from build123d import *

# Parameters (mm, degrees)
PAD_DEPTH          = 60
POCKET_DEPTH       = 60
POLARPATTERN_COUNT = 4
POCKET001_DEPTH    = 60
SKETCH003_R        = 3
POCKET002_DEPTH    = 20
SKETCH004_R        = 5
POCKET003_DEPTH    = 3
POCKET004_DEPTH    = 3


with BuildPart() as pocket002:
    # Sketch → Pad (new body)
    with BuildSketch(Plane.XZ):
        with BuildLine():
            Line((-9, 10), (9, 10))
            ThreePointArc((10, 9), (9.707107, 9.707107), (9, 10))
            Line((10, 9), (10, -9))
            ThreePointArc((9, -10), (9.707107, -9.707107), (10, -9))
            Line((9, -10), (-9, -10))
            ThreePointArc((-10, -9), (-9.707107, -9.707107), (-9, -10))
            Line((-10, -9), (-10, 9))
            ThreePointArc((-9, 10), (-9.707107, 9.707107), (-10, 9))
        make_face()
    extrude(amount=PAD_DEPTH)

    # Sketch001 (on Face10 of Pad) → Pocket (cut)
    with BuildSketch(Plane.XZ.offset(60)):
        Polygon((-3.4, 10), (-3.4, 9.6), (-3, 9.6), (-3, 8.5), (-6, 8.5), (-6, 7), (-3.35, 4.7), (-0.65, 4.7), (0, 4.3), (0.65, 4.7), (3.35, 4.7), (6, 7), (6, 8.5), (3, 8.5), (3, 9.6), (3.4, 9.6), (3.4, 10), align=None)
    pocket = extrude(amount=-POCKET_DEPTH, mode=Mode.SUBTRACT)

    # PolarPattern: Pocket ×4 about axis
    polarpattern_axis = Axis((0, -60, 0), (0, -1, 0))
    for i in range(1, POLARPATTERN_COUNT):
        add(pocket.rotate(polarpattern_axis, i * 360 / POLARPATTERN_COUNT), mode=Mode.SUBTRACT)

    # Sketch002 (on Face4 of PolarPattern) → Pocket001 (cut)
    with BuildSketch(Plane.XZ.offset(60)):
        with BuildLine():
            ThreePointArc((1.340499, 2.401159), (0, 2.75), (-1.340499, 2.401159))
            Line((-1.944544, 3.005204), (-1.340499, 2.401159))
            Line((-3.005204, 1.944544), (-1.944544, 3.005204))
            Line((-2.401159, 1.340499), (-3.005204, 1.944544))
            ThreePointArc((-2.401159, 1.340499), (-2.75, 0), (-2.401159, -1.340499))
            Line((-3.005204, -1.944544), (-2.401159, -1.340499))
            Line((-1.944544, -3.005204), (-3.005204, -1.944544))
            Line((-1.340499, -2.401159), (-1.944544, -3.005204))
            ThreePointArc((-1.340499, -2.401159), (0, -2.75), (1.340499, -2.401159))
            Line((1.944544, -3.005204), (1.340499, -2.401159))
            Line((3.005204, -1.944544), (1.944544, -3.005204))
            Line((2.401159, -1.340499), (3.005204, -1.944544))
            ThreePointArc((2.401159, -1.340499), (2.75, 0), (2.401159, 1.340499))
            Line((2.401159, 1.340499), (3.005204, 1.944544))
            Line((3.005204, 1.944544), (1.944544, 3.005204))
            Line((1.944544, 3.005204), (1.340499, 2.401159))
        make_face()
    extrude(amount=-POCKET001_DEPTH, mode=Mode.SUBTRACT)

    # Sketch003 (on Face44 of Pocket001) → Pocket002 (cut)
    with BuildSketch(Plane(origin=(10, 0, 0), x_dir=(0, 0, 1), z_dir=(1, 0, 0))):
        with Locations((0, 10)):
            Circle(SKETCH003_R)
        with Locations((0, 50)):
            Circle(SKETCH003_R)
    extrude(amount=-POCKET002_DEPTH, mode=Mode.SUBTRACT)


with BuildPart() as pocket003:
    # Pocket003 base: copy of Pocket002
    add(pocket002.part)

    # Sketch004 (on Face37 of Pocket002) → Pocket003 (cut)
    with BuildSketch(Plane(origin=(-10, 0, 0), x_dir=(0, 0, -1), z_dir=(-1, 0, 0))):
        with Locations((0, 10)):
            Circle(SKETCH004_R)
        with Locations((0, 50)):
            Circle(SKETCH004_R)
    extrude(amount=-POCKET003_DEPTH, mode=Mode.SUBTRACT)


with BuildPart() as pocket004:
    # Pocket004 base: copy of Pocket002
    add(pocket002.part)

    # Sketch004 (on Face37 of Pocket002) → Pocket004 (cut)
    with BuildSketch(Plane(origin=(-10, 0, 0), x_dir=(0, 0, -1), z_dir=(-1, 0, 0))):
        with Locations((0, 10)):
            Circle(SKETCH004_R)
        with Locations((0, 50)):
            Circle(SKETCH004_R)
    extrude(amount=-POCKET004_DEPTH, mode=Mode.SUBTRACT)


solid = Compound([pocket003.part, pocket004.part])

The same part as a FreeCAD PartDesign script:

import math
import FreeCAD as App
import Part
import Sketcher

V = App.Vector
Q = App.Units.Quantity


def add_polygon(sketch, points):
    """Adds a closed chain of lines whose ends are joined by coincident constraints."""
    first, n = sketch.GeometryCount, len(points)
    for a, b in zip(points, points[1:] + points[:1]):
        sketch.addGeometry(Part.LineSegment(App.Vector(*a, 0), App.Vector(*b, 0)), False)
    for i in range(n):
        sketch.addConstraint(Sketcher.Constraint("Coincident", first + i, 2, first + (i + 1) % n, 1))

doc = App.newDocument("Part")
params = doc.addObject("Spreadsheet::Sheet", "Params")
for row, (alias, value) in enumerate([
    ("sketch1_radius", "0.999999 mm"),
    ("sketch1_width", "18 mm"),
    ("pad1_length", "60 mm"),
    ("sketch2_width", "3 mm"),
    ("sketch2_width2", "0.4 mm"),
    ("sketch2_width3", "2.7 mm"),
    ("sketch2_width4", "6.8 mm"),
    ("sketch2_height", "1.1 mm"),
    ("pocket1_length", "60 mm"),
    ("sketch3_length", "1.5 mm"),
    ("pocket2_length", "60 mm"),
    ("sketch4_diameter", "6 mm"),
    ("pocket3_length", "20 mm"),
    ("sketch5_diameter", "10 mm"),
    ("pocket4_length", "3 mm"),
    ("sketch6_diameter", "10 mm"),
    ("pocket5_length", "3 mm"),
], start=1):
    params.set(f"A{row}", alias)
    params.set(f"B{row}", "=" + value)
    params.setAlias(f"B{row}", alias)

body = doc.addObject("PartDesign::Body", "Body")

# Sketch on XZ plane
sketch1 = body.newObject("Sketcher::SketchObject", "Sketch")
sketch1.AttachmentSupport = (doc.getObject("XZ_Plane"), [""])
sketch1.MapMode = "FlatFace"
sketch1.addGeometry(Part.LineSegment(V(9, 10, 0), V(-9, 10, 0)), False)
sketch1.addGeometry(Part.ArcOfCircle(Part.Circle(V(-9, 9, 0), V(0, 0, 1), 1), math.radians(90), math.radians(180)), False)
sketch1.addGeometry(Part.LineSegment(V(-10, 9, 0), V(-10, -9, 0)), False)
sketch1.addGeometry(Part.ArcOfCircle(Part.Circle(V(-9, -9, 0), V(0, 0, 1), 1), math.radians(180), math.radians(270)), False)
sketch1.addGeometry(Part.LineSegment(V(-9, -10, 0), V(9, -10, 0)), False)
sketch1.addGeometry(Part.ArcOfCircle(Part.Circle(V(9, -9, 0), V(0, 0, 1), 1), math.radians(-90), math.radians(0)), False)
sketch1.addGeometry(Part.LineSegment(V(10, -9, 0), V(10, 9, 0)), False)
sketch1.addGeometry(Part.ArcOfCircle(Part.Circle(V(9, 9, 0), V(0, 0, 1), 1), math.radians(0), math.radians(90)), False)
sketch1.addConstraint(Sketcher.Constraint("Tangent", 0, 2, 1, 1))
sketch1.addConstraint(Sketcher.Constraint("Tangent", 1, 2, 2, 1))
sketch1.addConstraint(Sketcher.Constraint("Tangent", 2, 2, 3, 1))
sketch1.addConstraint(Sketcher.Constraint("Tangent", 3, 2, 4, 1))
sketch1.addConstraint(Sketcher.Constraint("Tangent", 4, 2, 5, 1))
sketch1.addConstraint(Sketcher.Constraint("Tangent", 5, 2, 6, 1))
sketch1.addConstraint(Sketcher.Constraint("Tangent", 6, 2, 7, 1))
sketch1.addConstraint(Sketcher.Constraint("Tangent", 7, 2, 0, 1))
sketch1.addConstraint(Sketcher.Constraint("Horizontal", 0))
sketch1.addConstraint(Sketcher.Constraint("Vertical", 2))
sketch1.addConstraint(Sketcher.Constraint("Horizontal", 4))
sketch1.addConstraint(Sketcher.Constraint("Vertical", 6))
sketch1.addConstraint(Sketcher.Constraint("Equal", 1, 3))
sketch1.addConstraint(Sketcher.Constraint("Equal", 3, 5))
sketch1.addConstraint(Sketcher.Constraint("Equal", 5, 7))
sketch1.addConstraint(Sketcher.Constraint("Symmetric", 1, 3, 5, 3, -1, 1))
sketch1.addConstraint(Sketcher.Constraint("Equal", 4, 2))
sketch1.addConstraint(Sketcher.Constraint("Radius", 1, Q("0.999999 mm")))
sketch1.addConstraint(Sketcher.Constraint("DistanceX", 0, 2, 0, 1, Q("18 mm")))
sketch1.setExpression("Constraints[17]", "Params.sketch1_radius")
sketch1.setExpression("Constraints[18]", "Params.sketch1_width")
pad1 = body.newObject("PartDesign::Pad", "Pad")
pad1.Profile = sketch1
pad1.setExpression("Length", "Params.pad1_length")

# Sketch on XZ plane
sketch2 = body.newObject("Sketcher::SketchObject", "Sketch001")
sketch2.AttachmentSupport = (doc.getObject("XZ_Plane"), [""])
sketch2.MapMode = "FlatFace"
sketch2.AttachmentOffset = App.Placement(V(0, 0, 60), App.Rotation())
add_polygon(sketch2, [(-3.4, 10), (-3.4, 9.6), (-3, 9.6), (-3, 8.5), (-6, 8.5), (-6, 7), (-3.35, 4.7), (-0.65, 4.7), (0, 4.3), (0.65, 4.7), (3.35, 4.7), (6, 7), (6, 8.5), (3, 8.5), (3, 9.6), (3.4, 9.6), (3.4, 10)])  # lines 0-16
sketch2.addConstraint(Sketcher.Constraint("Vertical", 0))
sketch2.addConstraint(Sketcher.Constraint("Horizontal", 1))
sketch2.addConstraint(Sketcher.Constraint("Vertical", 2))
sketch2.addConstraint(Sketcher.Constraint("Horizontal", 3))
sketch2.addConstraint(Sketcher.Constraint("Vertical", 4))
sketch2.addConstraint(Sketcher.Constraint("Horizontal", 6))
sketch2.addConstraint(Sketcher.Constraint("Horizontal", 9))
sketch2.addConstraint(Sketcher.Constraint("Vertical", 11))
sketch2.addConstraint(Sketcher.Constraint("Horizontal", 12))
sketch2.addConstraint(Sketcher.Constraint("Vertical", 13))
sketch2.addConstraint(Sketcher.Constraint("Horizontal", 14))
sketch2.addConstraint(Sketcher.Constraint("Vertical", 15))
sketch2.addConstraint(Sketcher.Constraint("Horizontal", 16))
sketch2.addConstraint(Sketcher.Constraint("Symmetric", 6, 2, 8, 2, -2))
sketch2.addConstraint(Sketcher.Constraint("Symmetric", 4, 2, 10, 2, -2))
sketch2.addConstraint(Sketcher.Constraint("Symmetric", 2, 2, 12, 2, -2))
sketch2.addConstraint(Sketcher.Constraint("Symmetric", 0, 2, 14, 2, -2))
sketch2.addConstraint(Sketcher.Constraint("PointOnObject", 7, 2, -2))
sketch2.addConstraint(Sketcher.Constraint("Equal", 6, 9))
sketch2.addConstraint(Sketcher.Constraint("Equal", 14, 0))
sketch2.addConstraint(Sketcher.Constraint("DistanceX", 3, 2, 3, 1, Q("3 mm")))
sketch2.addConstraint(Sketcher.Constraint("DistanceX", 1, 1, 1, 2, Q("0.4 mm")))
sketch2.addConstraint(Sketcher.Constraint("DistanceX", 6, 1, 6, 2, Q("2.7 mm")))
sketch2.addConstraint(Sketcher.Constraint("DistanceX", 16, 2, 16, 1, Q("6.8 mm")))
sketch2.addConstraint(Sketcher.Constraint("DistanceY", 2, 2, 2, 1, Q("1.1 mm")))
sketch2.addConstraint(Sketcher.Constraint("DistanceY", 4, 2, 4, 1, Q("1.5 mm")))
sketch2.addConstraint(Sketcher.Constraint("DistanceY", -1, 1, 4, 2, Q("7 mm")))
sketch2.addConstraint(Sketcher.Constraint("DistanceX", 5, 2, 8, 2, Q("4 mm")))
sketch2.addConstraint(Sketcher.Constraint("DistanceY", -1, 1, 5, 2, Q("4.7 mm")))
sketch2.addConstraint(Sketcher.Constraint("DistanceY", -1, 1, 7, 2, Q("4.3 mm")))
sketch2.setExpression("Constraints[37]", "Params.sketch2_width")
sketch2.setExpression("Constraints[38]", "Params.sketch2_width2")
sketch2.setExpression("Constraints[39]", "Params.sketch2_width3")
sketch2.setExpression("Constraints[40]", "Params.sketch2_width4")
sketch2.setExpression("Constraints[41]", "Params.sketch2_height")
pocket1 = body.newObject("PartDesign::Pocket", "Pocket")
pocket1.Profile = sketch2
pocket1.setExpression("Length", "Params.pocket1_length")
doc.recompute()

polarpattern = body.newObject("PartDesign::PolarPattern", "PolarPattern")
polarpattern.Originals = [pocket1]
polarpattern.Axis = (doc.getObject("Y_Axis"), [""])
polarpattern.Angle = 360
polarpattern.Occurrences = 4
body.Tip = polarpattern

# Sketch on XZ plane
sketch3 = body.newObject("Sketcher::SketchObject", "Sketch002")
sketch3.AttachmentSupport = (doc.getObject("XZ_Plane"), [""])
sketch3.MapMode = "FlatFace"
sketch3.AttachmentOffset = App.Placement(V(0, 0, 60), App.Rotation())
sketch3.addGeometry(Part.ArcOfCircle(Part.Circle(V(0, 0, 0), V(0, 0, 1), 2.8), math.radians(61), math.radians(119)), False)
sketch3.addGeometry(Part.LineSegment(V(-1.3, 2.4, 0), V(-1.9, 3, 0)), False)
sketch3.addGeometry(Part.LineSegment(V(-1.9, 3, 0), V(-3, 1.9, 0)), False)
sketch3.addGeometry(Part.LineSegment(V(-3, 1.9, 0), V(-2.4, 1.3, 0)), False)
sketch3.addGeometry(Part.ArcOfCircle(Part.Circle(V(0, 0, 0), V(0, 0, 1), 2.8), math.radians(151), math.radians(209)), False)
sketch3.addGeometry(Part.LineSegment(V(-2.4, -1.3, 0), V(-3, -1.9, 0)), False)
sketch3.addGeometry(Part.LineSegment(V(-3, -1.9, 0), V(-1.9, -3, 0)), False)
sketch3.addGeometry(Part.LineSegment(V(-1.9, -3, 0), V(-1.3, -2.4, 0)), False)
sketch3.addGeometry(Part.ArcOfCircle(Part.Circle(V(0, 0, 0), V(0, 0, 1), 2.8), math.radians(-119), math.radians(-61)), False)
sketch3.addGeometry(Part.LineSegment(V(1.3, -2.4, 0), V(1.9, -3, 0)), False)
sketch3.addGeometry(Part.LineSegment(V(1.9, -3, 0), V(3, -1.9, 0)), False)
sketch3.addGeometry(Part.LineSegment(V(3, -1.9, 0), V(2.4, -1.3, 0)), False)
sketch3.addGeometry(Part.ArcOfCircle(Part.Circle(V(0, 0, 0), V(0, 0, 1), 2.8), math.radians(-29), math.radians(29)), False)
sketch3.addGeometry(Part.LineSegment(V(2.4, 1.3, 0), V(3, 1.9, 0)), False)
sketch3.addGeometry(Part.LineSegment(V(3, 1.9, 0), V(1.9, 3, 0)), False)
sketch3.addGeometry(Part.LineSegment(V(1.9, 3, 0), V(1.3, 2.4, 0)), False)
sketch3.addConstraint(Sketcher.Constraint("Coincident", 0, 2, 1, 1))
sketch3.addConstraint(Sketcher.Constraint("Coincident", 1, 2, 2, 1))
sketch3.addConstraint(Sketcher.Constraint("Coincident", 2, 2, 3, 1))
sketch3.addConstraint(Sketcher.Constraint("Coincident", 3, 2, 4, 1))
sketch3.addConstraint(Sketcher.Constraint("Coincident", 4, 2, 5, 1))
sketch3.addConstraint(Sketcher.Constraint("Coincident", 5, 2, 6, 1))
sketch3.addConstraint(Sketcher.Constraint("Coincident", 6, 2, 7, 1))
sketch3.addConstraint(Sketcher.Constraint("Coincident", 7, 2, 8, 1))
sketch3.addConstraint(Sketcher.Constraint("Coincident", 8, 2, 9, 1))
sketch3.addConstraint(Sketcher.Constraint("Coincident", 9, 2, 10, 1))
sketch3.addConstraint(Sketcher.Constraint("Coincident", 10, 2, 11, 1))
sketch3.addConstraint(Sketcher.Constraint("Coincident", 11, 2, 12, 1))
sketch3.addConstraint(Sketcher.Constraint("Coincident", 12, 2, 13, 1))
sketch3.addConstraint(Sketcher.Constraint("Coincident", 13, 2, 14, 1))
sketch3.addConstraint(Sketcher.Constraint("Coincident", 14, 2, 15, 1))
sketch3.addConstraint(Sketcher.Constraint("Coincident", 15, 2, 0, 1))
sketch3.addConstraint(Sketcher.Constraint("Coincident", 0, 3, -1, 1))
sketch3.addConstraint(Sketcher.Constraint("Coincident", 4, 3, -1, 1))
sketch3.addConstraint(Sketcher.Constraint("Coincident", 8, 3, -1, 1))
sketch3.addConstraint(Sketcher.Constraint("Coincident", 12, 3, -1, 1))
sketch3.addConstraint(Sketcher.Constraint("Equal", 0, 4))
sketch3.addConstraint(Sketcher.Constraint("Equal", 4, 8))
sketch3.addConstraint(Sketcher.Constraint("Equal", 8, 12))
sketch3.addConstraint(Sketcher.Constraint("Symmetric", 1, 2, 9, 2, -1, 1))
sketch3.addConstraint(Sketcher.Constraint("Symmetric", 2, 2, 10, 2, -1, 1))
sketch3.addConstraint(Sketcher.Constraint("Symmetric", 5, 2, 13, 2, -1, 1))
sketch3.addConstraint(Sketcher.Constraint("Symmetric", 6, 2, 14, 2, -1, 1))
sketch3.addConstraint(Sketcher.Constraint("Symmetric", 6, 2, 9, 2, -2))
sketch3.addConstraint(Sketcher.Constraint("Symmetric", 5, 2, 10, 2, -2))
sketch3.addConstraint(Sketcher.Constraint("Perpendicular", 1, 2))
sketch3.addConstraint(Sketcher.Constraint("Perpendicular", 2, 3))
sketch3.addConstraint(Sketcher.Constraint("Perpendicular", 3, 5))
sketch3.addConstraint(Sketcher.Constraint("Perpendicular", 5, 6))
sketch3.addConstraint(Sketcher.Constraint("Perpendicular", 6, 7))
sketch3.addConstraint(Sketcher.Constraint("Perpendicular", 7, 9))
sketch3.addConstraint(Sketcher.Constraint("Perpendicular", 10, 11))
sketch3.addConstraint(Sketcher.Constraint("Perpendicular", 11, 13))
sketch3.addConstraint(Sketcher.Constraint("Perpendicular", 14, 15))
sketch3.addConstraint(Sketcher.Constraint("Equal", 1, 3))
sketch3.addConstraint(Sketcher.Constraint("Distance", 2, Q("1.5 mm")))
sketch3.addConstraint(Sketcher.Constraint("Radius", 0, Q("2.750003 mm")))
sketch3.addConstraint(Sketcher.Constraint("DistanceY", 8, 3, 1, 2, Q("3.005201 mm")))
sketch3.setExpression("Constraints[39]", "Params.sketch3_length")
pocket2 = body.newObject("PartDesign::Pocket", "Pocket001")
pocket2.Profile = sketch3
pocket2.setExpression("Length", "Params.pocket2_length")

# Sketch on YZ plane
sketch4 = body.newObject("Sketcher::SketchObject", "Sketch003")
sketch4.AttachmentSupport = (doc.getObject("YZ_Plane"), [""])
sketch4.MapMode = "FlatFace"
sketch4.AttachmentOffset = App.Placement(V(0, 0, 10), App.Rotation())
sketch4.addGeometry(Part.Circle(V(-10, 0, 0), V(0, 0, 1), 3), False)
sketch4.addGeometry(Part.Circle(V(-50, 0, 0), V(0, 0, 1), 3), False)
sketch4.addConstraint(Sketcher.Constraint("Equal", 0, 1))
sketch4.addConstraint(Sketcher.Constraint("PointOnObject", 0, 3, -1))
sketch4.addConstraint(Sketcher.Constraint("PointOnObject", 1, 3, -1))
sketch4.addConstraint(Sketcher.Constraint("Diameter", 0, Q("6 mm")))
sketch4.addConstraint(Sketcher.Constraint("DistanceX", 0, 3, -1, 1, Q("10 mm")))
sketch4.addConstraint(Sketcher.Constraint("DistanceX", 1, 3, -1, 1, Q("50 mm")))
sketch4.setExpression("Constraints[3]", "Params.sketch4_diameter")
pocket3 = body.newObject("PartDesign::Pocket", "Pocket002")
pocket3.Profile = sketch4
pocket3.setExpression("Length", "Params.pocket3_length")
body2 = doc.addObject("PartDesign::Body", "Body001")
doc.recompute()

body2.BaseFeature = body
doc.recompute()

# Sketch on YZ plane
sketch5 = body2.newObject("Sketcher::SketchObject", "Sketch004")
sketch5.AttachmentSupport = (doc.getObject("YZ_Plane001"), [""])
sketch5.MapMode = "FlatFace"
sketch5.AttachmentOffset = App.Placement(V(0, 0, -10), App.Rotation())
sketch5.addGeometry(Part.Circle(V(-10, 0, 0), V(0, 0, 1), 5), False)
sketch5.addGeometry(Part.Circle(V(-50, 0, 0), V(0, 0, 1), 5), False)
sketch5.addConstraint(Sketcher.Constraint("Equal", 0, 1))
sketch5.addConstraint(Sketcher.Constraint("PointOnObject", 0, 3, -1))
sketch5.addConstraint(Sketcher.Constraint("PointOnObject", 1, 3, -1))
sketch5.addConstraint(Sketcher.Constraint("Diameter", 0, Q("10 mm")))
sketch5.addConstraint(Sketcher.Constraint("DistanceX", 0, 3, -1, 1, Q("10 mm")))
sketch5.addConstraint(Sketcher.Constraint("DistanceX", 1, 3, -1, 1, Q("50 mm")))
sketch5.setExpression("Constraints[3]", "Params.sketch5_diameter")
pocket4 = body2.newObject("PartDesign::Pocket", "Pocket003")
pocket4.Profile = sketch5
pocket4.setExpression("Length", "Params.pocket4_length")
pocket4.Reversed = True

# Sketch on YZ plane
sketch6 = body.newObject("Sketcher::SketchObject", "Sketch005")
sketch6.AttachmentSupport = (doc.getObject("YZ_Plane"), [""])
sketch6.MapMode = "FlatFace"
sketch6.AttachmentOffset = App.Placement(V(0, 0, -10), App.Rotation())
sketch6.addGeometry(Part.Circle(V(-10, 0, 0), V(0, 0, 1), 5), False)
sketch6.addGeometry(Part.Circle(V(-50, 0, 0), V(0, 0, 1), 5), False)
sketch6.addConstraint(Sketcher.Constraint("Equal", 0, 1))
sketch6.addConstraint(Sketcher.Constraint("PointOnObject", 0, 3, -1))
sketch6.addConstraint(Sketcher.Constraint("PointOnObject", 1, 3, -1))
sketch6.addConstraint(Sketcher.Constraint("Diameter", 0, Q("10 mm")))
sketch6.addConstraint(Sketcher.Constraint("DistanceX", 0, 3, -1, 1, Q("10 mm")))
sketch6.addConstraint(Sketcher.Constraint("DistanceX", 1, 3, -1, 1, Q("50 mm")))
sketch6.setExpression("Constraints[3]", "Params.sketch6_diameter")
pocket5 = body.newObject("PartDesign::Pocket", "Pocket004")
pocket5.Profile = sketch6
pocket5.setExpression("Length", "Params.pocket5_length")
pocket5.Reversed = True

doc.recompute()
